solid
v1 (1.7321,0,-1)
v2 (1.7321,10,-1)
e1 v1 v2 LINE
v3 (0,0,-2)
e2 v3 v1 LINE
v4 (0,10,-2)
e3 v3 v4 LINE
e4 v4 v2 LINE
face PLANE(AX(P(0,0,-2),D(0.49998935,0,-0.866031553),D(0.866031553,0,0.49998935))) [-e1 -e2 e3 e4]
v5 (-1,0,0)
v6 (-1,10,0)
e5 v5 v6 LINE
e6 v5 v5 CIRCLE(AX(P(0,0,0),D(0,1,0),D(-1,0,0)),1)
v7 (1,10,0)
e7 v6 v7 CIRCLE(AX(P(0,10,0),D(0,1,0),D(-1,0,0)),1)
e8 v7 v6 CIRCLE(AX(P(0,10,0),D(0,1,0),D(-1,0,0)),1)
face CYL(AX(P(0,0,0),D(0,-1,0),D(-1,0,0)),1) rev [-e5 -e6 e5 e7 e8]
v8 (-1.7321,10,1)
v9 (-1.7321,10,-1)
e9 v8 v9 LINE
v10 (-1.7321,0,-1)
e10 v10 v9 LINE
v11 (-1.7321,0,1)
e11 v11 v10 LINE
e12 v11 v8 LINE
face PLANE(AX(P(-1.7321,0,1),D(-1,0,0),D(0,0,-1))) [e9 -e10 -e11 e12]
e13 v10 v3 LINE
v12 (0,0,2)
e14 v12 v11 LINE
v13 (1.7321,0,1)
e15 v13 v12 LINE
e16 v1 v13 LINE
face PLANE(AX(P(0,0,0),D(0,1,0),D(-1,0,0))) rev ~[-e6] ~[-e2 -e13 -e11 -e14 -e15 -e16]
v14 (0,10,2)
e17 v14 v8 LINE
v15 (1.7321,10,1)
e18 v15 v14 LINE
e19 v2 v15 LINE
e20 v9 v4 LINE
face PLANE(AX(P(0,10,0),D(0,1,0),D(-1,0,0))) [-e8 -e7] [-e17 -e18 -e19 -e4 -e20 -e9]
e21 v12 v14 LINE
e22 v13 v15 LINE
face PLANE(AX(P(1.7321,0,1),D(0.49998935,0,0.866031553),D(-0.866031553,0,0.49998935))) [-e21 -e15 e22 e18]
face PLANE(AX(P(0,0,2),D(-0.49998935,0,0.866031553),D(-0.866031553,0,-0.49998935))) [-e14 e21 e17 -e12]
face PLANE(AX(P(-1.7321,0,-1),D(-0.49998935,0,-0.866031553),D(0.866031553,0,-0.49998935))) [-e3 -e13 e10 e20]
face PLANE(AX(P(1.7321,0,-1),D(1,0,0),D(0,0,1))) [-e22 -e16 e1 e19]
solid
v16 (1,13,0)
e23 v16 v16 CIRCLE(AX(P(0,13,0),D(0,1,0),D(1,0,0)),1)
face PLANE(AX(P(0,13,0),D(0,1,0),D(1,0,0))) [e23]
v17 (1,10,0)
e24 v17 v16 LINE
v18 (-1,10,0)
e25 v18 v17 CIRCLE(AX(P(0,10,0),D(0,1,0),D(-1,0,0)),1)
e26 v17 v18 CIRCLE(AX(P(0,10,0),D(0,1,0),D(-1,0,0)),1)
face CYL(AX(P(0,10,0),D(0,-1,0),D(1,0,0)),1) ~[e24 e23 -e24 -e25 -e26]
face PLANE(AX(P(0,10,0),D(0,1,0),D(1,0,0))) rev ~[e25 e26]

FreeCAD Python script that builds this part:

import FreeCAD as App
import Part
import Sketcher

V = App.Vector


def add_polygon(sketch, points):
    """Adds a closed chain of lines whose ends are joined by coincident constraints."""
    first, n = sketch.GeometryCount, len(points)
    for a, b in zip(points, points[1:] + points[:1]):
        sketch.addGeometry(Part.LineSegment(App.Vector(*a, 0), App.Vector(*b, 0)), False)
    for i in range(n):
        sketch.addConstraint(Sketcher.Constraint("Coincident", first + i, 2, first + (i + 1) % n, 1))

doc = App.newDocument("Part")
body = doc.addObject("PartDesign::Body", "Body")
body.AllowCompound = True

# Sketch on XZ plane
sketch1 = body.newObject("Sketcher::SketchObject", "Sketch")
sketch1.AttachmentSupport = (doc.getObject("XZ_Plane"), [""])
sketch1.MapMode = "FlatFace"
add_polygon(sketch1, [(1.7, -1), (0, -2), (-1.7, -1), (-1.7, 1), (0, 2), (1.7, 1)])  # lines 0-5
sketch1.addGeometry(Part.Circle(V(0, 0, 0), V(0, 0, 1), 1), False)  # 6
sketch1.addConstraint([
    Sketcher.Constraint("Vertical", 2),
    Sketcher.Constraint("Vertical", 5),
    Sketcher.Constraint("Coincident", 6, 3, -1, 1),
    Sketcher.Constraint("Symmetric", 0, 2, 3, 2, -1, 1),
    Sketcher.Constraint("Symmetric", 1, 2, 4, 2, -1, 1),
    Sketcher.Constraint("PointOnObject", 0, 2, -2),
    Sketcher.Constraint("Parallel", 0, 3),
    Sketcher.Constraint("Horizontal", 2, 2, 4, 2),
    Sketcher.Constraint("Diameter", 6, 2.0),
    Sketcher.Constraint("DistanceY", 2, 1, 2, 2, 2.0),
    Sketcher.Constraint("Distance", 0, 2.0),
    Sketcher.Constraint("DistanceY", 0, 2, -1, 1, 2.0),
])
pad1 = body.newObject("PartDesign::Pad", "Pad")
pad1.Profile = sketch1
pad1.Length = 10
pad1.Reversed = True

# Sketch on XZ plane
sketch2 = body.newObject("Sketcher::SketchObject", "Sketch001")
sketch2.AttachmentSupport = (doc.getObject("XZ_Plane"), [""])
sketch2.MapMode = "FlatFace"
sketch2.AttachmentOffset = App.Placement(V(0, 0, -10), App.Rotation())
sketch2.addGeometry(Part.Circle(V(0, 0, 0), V(0, 0, 1), 1), False)
sketch2.addConstraint([
    Sketcher.Constraint("Coincident", 0, 3, -1, 1),
    Sketcher.Constraint("Diameter", 0, 2.0),
])
pad2 = body.newObject("PartDesign::Pad", "Pad001")
pad2.Profile = sketch2
pad2.Length = 3
pad2.Reversed = True

doc.recompute()
